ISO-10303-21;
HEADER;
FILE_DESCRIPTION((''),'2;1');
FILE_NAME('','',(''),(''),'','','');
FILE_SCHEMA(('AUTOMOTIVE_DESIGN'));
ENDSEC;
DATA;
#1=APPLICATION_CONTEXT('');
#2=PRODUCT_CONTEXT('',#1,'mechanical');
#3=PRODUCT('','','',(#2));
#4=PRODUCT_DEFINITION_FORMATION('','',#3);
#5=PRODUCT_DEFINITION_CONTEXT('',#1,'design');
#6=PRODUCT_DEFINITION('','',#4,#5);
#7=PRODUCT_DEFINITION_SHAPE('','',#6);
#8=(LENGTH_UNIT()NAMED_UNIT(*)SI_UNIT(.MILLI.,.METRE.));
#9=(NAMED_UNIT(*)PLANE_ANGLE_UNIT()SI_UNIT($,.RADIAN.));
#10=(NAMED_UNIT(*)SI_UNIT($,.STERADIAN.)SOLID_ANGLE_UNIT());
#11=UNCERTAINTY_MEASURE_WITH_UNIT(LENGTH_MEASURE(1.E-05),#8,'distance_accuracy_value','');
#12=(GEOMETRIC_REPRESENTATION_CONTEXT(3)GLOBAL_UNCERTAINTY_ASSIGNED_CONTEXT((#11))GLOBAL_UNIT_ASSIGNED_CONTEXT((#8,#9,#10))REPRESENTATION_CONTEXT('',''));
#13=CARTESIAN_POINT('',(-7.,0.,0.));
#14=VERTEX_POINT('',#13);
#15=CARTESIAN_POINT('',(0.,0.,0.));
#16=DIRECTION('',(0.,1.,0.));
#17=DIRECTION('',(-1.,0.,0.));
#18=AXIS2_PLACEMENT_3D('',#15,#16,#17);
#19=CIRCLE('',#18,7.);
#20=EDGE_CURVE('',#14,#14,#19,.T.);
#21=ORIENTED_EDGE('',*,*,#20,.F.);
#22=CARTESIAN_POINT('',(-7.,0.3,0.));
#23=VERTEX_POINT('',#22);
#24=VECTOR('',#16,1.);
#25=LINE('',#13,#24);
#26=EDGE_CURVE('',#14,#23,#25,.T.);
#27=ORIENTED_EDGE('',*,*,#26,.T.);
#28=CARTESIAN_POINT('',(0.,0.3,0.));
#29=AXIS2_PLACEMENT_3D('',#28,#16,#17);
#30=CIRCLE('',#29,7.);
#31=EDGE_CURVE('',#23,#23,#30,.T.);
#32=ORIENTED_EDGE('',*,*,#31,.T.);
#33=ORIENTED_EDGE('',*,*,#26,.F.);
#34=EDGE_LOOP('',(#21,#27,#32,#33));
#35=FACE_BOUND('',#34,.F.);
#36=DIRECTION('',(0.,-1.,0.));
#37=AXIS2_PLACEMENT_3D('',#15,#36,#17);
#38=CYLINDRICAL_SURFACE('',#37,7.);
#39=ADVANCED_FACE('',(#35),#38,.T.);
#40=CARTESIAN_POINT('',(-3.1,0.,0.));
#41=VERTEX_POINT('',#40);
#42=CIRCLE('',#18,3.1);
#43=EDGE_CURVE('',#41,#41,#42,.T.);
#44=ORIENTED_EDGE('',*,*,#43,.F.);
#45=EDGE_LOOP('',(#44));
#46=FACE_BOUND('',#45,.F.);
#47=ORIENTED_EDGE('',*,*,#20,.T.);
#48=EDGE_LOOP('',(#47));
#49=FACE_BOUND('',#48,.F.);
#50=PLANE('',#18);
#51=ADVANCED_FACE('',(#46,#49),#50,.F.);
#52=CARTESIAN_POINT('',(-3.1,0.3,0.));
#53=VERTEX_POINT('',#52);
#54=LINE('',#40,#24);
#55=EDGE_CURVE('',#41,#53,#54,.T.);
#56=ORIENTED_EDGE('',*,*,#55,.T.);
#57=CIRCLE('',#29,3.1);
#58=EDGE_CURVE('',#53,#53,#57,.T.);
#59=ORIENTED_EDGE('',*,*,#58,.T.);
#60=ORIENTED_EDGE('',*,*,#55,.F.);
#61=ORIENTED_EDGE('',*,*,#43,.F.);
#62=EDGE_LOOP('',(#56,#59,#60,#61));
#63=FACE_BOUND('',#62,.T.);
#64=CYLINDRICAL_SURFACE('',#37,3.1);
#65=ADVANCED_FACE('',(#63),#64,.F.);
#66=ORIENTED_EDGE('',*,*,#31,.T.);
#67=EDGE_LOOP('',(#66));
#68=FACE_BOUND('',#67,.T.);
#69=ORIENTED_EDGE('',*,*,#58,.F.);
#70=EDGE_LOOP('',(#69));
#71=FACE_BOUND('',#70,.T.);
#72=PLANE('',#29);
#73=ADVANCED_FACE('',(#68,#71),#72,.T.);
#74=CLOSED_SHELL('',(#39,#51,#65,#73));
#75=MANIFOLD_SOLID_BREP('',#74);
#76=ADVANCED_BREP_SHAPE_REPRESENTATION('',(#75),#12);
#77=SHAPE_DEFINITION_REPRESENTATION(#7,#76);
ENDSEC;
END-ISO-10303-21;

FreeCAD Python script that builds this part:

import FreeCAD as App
import Part
import Sketcher
from FreeCAD import Vector

doc = App.newDocument("Part")
body = doc.addObject("PartDesign::Body", "Body")

# Sketch on XZ plane
sketch1 = body.newObject("Sketcher::SketchObject", "Sketch")
sketch1.AttachmentSupport = (doc.getObject("XZ_Plane"), [""])
sketch1.MapMode = "FlatFace"
sketch1.addGeometry([
    Part.Circle(Vector(0, 0, 0), Vector(0, 0, 1), 7),
    Part.Circle(Vector(0, 0, 0), Vector(0, 0, 1), 3.1),
], False)
sketch1.addConstraint([
    Sketcher.Constraint("Coincident", 0, 3, -1, 1),
    Sketcher.Constraint("Coincident", 1, 3, -1, 1),
    Sketcher.Constraint("Diameter", 0, 14.0),
    Sketcher.Constraint("Diameter", 1, 6.2),
])
pad1 = body.newObject("PartDesign::Pad", "Pad")
pad1.Profile = sketch1
pad1.Length = 0.3
pad1.Reversed = True

doc.recompute()
